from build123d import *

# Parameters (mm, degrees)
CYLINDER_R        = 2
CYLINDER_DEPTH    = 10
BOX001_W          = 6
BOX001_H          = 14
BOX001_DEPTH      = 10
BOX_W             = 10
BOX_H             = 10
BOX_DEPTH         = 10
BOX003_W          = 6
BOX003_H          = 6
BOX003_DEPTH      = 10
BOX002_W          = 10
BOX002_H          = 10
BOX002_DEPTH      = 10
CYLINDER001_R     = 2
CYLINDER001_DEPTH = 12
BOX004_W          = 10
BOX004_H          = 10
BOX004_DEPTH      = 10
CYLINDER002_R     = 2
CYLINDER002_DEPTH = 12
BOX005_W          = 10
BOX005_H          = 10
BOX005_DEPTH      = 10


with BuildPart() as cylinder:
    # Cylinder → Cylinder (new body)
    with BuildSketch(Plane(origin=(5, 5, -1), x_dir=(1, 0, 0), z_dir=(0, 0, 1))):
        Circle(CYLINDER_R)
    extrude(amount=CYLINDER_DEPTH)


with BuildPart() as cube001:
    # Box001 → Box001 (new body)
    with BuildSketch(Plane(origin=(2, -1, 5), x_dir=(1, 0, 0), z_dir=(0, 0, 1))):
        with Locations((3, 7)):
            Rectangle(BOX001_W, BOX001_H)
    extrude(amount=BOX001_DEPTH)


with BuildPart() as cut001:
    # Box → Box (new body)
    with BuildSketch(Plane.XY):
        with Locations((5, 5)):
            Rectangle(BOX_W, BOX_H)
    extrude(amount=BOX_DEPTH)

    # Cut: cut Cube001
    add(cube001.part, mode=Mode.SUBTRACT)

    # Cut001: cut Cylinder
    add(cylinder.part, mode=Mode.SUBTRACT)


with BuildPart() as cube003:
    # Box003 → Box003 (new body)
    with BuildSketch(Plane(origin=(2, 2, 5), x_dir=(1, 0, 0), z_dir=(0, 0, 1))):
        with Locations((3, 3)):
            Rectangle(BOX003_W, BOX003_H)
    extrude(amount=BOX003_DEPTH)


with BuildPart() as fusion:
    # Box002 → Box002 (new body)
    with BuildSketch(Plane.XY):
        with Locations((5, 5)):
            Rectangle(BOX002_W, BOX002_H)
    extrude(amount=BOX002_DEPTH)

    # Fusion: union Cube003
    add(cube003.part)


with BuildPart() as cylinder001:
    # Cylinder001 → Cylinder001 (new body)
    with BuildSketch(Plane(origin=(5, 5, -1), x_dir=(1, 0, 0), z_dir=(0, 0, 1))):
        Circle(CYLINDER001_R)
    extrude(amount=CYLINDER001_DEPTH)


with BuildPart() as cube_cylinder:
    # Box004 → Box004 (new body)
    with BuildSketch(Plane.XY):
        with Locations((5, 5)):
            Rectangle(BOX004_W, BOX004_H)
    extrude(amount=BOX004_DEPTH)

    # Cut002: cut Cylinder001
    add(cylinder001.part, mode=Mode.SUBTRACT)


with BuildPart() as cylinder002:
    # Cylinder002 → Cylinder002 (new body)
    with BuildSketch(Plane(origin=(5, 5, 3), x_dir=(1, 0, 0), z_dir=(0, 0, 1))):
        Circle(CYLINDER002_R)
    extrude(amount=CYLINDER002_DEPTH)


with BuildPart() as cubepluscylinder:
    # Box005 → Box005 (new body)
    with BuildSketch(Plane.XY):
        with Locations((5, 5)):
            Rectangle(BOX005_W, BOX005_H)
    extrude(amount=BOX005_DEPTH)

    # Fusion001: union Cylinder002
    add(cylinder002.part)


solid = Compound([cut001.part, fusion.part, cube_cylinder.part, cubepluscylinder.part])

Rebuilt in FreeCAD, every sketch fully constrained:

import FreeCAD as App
import Part
import Sketcher
from FreeCAD import Vector
Q = App.Units.Quantity


def add_polygon(sketch, points):
    """Adds a closed chain of lines whose ends are joined by coincident constraints."""
    first, n = sketch.GeometryCount, len(points)
    for a, b in zip(points, points[1:] + points[:1]):
        sketch.addGeometry(Part.LineSegment(App.Vector(*a, 0), App.Vector(*b, 0)), False)
    for i in range(n):
        sketch.addConstraint(Sketcher.Constraint("Coincident", first + i, 2, first + (i + 1) % n, 1))

doc = App.newDocument("Part")
body = doc.addObject("PartDesign::Body", "Body")

# Sketch on XY plane
sketch1 = body.newObject("Sketcher::SketchObject", "Sketch")
sketch1.AttachmentSupport = (doc.getObject("XY_Plane"), [""])
sketch1.MapMode = "FlatFace"
sketch1.AttachmentOffset = App.Placement(Vector(0, 0, -1), App.Rotation())
sketch1.addGeometry(Part.Circle(Vector(5, 5, 0), Vector(0, 0, 1), 2), False)
sketch1.addConstraint([
    Sketcher.Constraint("Diameter", 0, Q("4 mm")),
    Sketcher.Constraint("DistanceX", -1, 1, 0, 3, Q("5 mm")),
    Sketcher.Constraint("DistanceY", -1, 1, 0, 3, Q("5 mm")),
])
pad1 = body.newObject("PartDesign::Pad", "Pad")
pad1.Profile = sketch1
pad1.Length = 10
body2 = doc.addObject("PartDesign::Body", "Body001")

# Sketch on XY plane
sketch2 = body2.newObject("Sketcher::SketchObject", "Sketch001")
sketch2.AttachmentSupport = (doc.getObject("XY_Plane001"), [""])
sketch2.MapMode = "FlatFace"
sketch2.AttachmentOffset = App.Placement(Vector(0, 0, 5), App.Rotation())
add_polygon(sketch2, [(2, 13), (2, -1), (8, -1), (8, 13)])  # lines 0-3
sketch2.addConstraint([
    Sketcher.Constraint("Vertical", 0),
    Sketcher.Constraint("Horizontal", 1),
    Sketcher.Constraint("Vertical", 2),
    Sketcher.Constraint("Horizontal", 3),
    Sketcher.Constraint("DistanceX", 1, 1, 1, 2, Q("6 mm")),
    Sketcher.Constraint("DistanceY", 0, 2, 0, 1, Q("14 mm")),
    Sketcher.Constraint("DistanceX", -1, 1, 0, 2, Q("2 mm")),
    Sketcher.Constraint("DistanceY", 0, 2, -1, 1, Q("1 mm")),
])
pad2 = body2.newObject("PartDesign::Pad", "Pad001")
pad2.Profile = sketch2
pad2.Length = 10
body3 = doc.addObject("PartDesign::Body", "Body002")

# Sketch on XY plane
sketch3 = body3.newObject("Sketcher::SketchObject", "Sketch002")
sketch3.AttachmentSupport = (doc.getObject("XY_Plane002"), [""])
sketch3.MapMode = "FlatFace"
add_polygon(sketch3, [(0, 10), (0, 0), (10, 0), (10, 10)])  # lines 0-3
sketch3.addConstraint([
    Sketcher.Constraint("Vertical", 0),
    Sketcher.Constraint("Horizontal", 1),
    Sketcher.Constraint("Vertical", 2),
    Sketcher.Constraint("Horizontal", 3),
    Sketcher.Constraint("Coincident", 0, 2, -1, 1),
    Sketcher.Constraint("Equal", 3, 0),
    Sketcher.Constraint("DistanceX", 1, 1, 1, 2, Q("10 mm")),
])
pad3 = body3.newObject("PartDesign::Pad", "Pad002")
pad3.Profile = sketch3
pad3.Length = 10
doc.recompute()

boolean = body3.newObject("PartDesign::Boolean", "Boolean")
boolean.Type = "Cut"
boolean.addObjects([body2])
doc.recompute()

boolean2 = body3.newObject("PartDesign::Boolean", "Boolean001")
boolean2.Type = "Cut"
boolean2.addObjects([body])
body4 = doc.addObject("PartDesign::Body", "Body003")

# Sketch on XY plane
sketch4 = body4.newObject("Sketcher::SketchObject", "Sketch003")
sketch4.AttachmentSupport = (doc.getObject("XY_Plane003"), [""])
sketch4.MapMode = "FlatFace"
sketch4.AttachmentOffset = App.Placement(Vector(0, 0, 5), App.Rotation())
add_polygon(sketch4, [(2, 8), (2, 2), (8, 2), (8, 8)])  # lines 0-3
sketch4.addConstraint([
    Sketcher.Constraint("Vertical", 0),
    Sketcher.Constraint("Horizontal", 1),
    Sketcher.Constraint("Vertical", 2),
    Sketcher.Constraint("Horizontal", 3),
    Sketcher.Constraint("Equal", 3, 0),
    Sketcher.Constraint("DistanceX", 1, 1, 1, 2, Q("6 mm")),
    Sketcher.Constraint("DistanceX", -1, 1, 0, 2, Q("2 mm")),
    Sketcher.Constraint("DistanceY", -1, 1, 0, 2, Q("2 mm")),
])
pad4 = body4.newObject("PartDesign::Pad", "Pad003")
pad4.Profile = sketch4
pad4.Length = 10
body5 = doc.addObject("PartDesign::Body", "Body004")

# Sketch on XY plane
sketch5 = body5.newObject("Sketcher::SketchObject", "Sketch004")
sketch5.AttachmentSupport = (doc.getObject("XY_Plane004"), [""])
sketch5.MapMode = "FlatFace"
add_polygon(sketch5, [(0, 10), (0, 0), (10, 0), (10, 10)])  # lines 0-3
sketch5.addConstraint([
    Sketcher.Constraint("Vertical", 0),
    Sketcher.Constraint("Horizontal", 1),
    Sketcher.Constraint("Vertical", 2),
    Sketcher.Constraint("Horizontal", 3),
    Sketcher.Constraint("Coincident", 0, 2, -1, 1),
    Sketcher.Constraint("Equal", 3, 0),
    Sketcher.Constraint("DistanceX", 1, 1, 1, 2, Q("10 mm")),
])
pad5 = body5.newObject("PartDesign::Pad", "Pad004")
pad5.Profile = sketch5
pad5.Length = 10
doc.recompute()

boolean3 = body5.newObject("PartDesign::Boolean", "Boolean002")
boolean3.Type = "Fuse"
boolean3.addObjects([body4])
body6 = doc.addObject("PartDesign::Body", "Body005")

# Sketch on XY plane
sketch6 = body6.newObject("Sketcher::SketchObject", "Sketch005")
sketch6.AttachmentSupport = (doc.getObject("XY_Plane005"), [""])
sketch6.MapMode = "FlatFace"
sketch6.AttachmentOffset = App.Placement(Vector(0, 0, -1), App.Rotation())
sketch6.addGeometry(Part.Circle(Vector(5, 5, 0), Vector(0, 0, 1), 2), False)
sketch6.addConstraint([
    Sketcher.Constraint("Diameter", 0, Q("4 mm")),
    Sketcher.Constraint("DistanceX", -1, 1, 0, 3, Q("5 mm")),
    Sketcher.Constraint("DistanceY", -1, 1, 0, 3, Q("5 mm")),
])
pad6 = body6.newObject("PartDesign::Pad", "Pad005")
pad6.Profile = sketch6
pad6.Length = 12
body7 = doc.addObject("PartDesign::Body", "Body006")

# Sketch on XY plane
sketch7 = body7.newObject("Sketcher::SketchObject", "Sketch006")
sketch7.AttachmentSupport = (doc.getObject("XY_Plane006"), [""])
sketch7.MapMode = "FlatFace"
add_polygon(sketch7, [(0, 10), (0, 0), (10, 0), (10, 10)])  # lines 0-3
sketch7.addConstraint([
    Sketcher.Constraint("Vertical", 0),
    Sketcher.Constraint("Horizontal", 1),
    Sketcher.Constraint("Vertical", 2),
    Sketcher.Constraint("Horizontal", 3),
    Sketcher.Constraint("Coincident", 0, 2, -1, 1),
    Sketcher.Constraint("Equal", 3, 0),
    Sketcher.Constraint("DistanceX", 1, 1, 1, 2, Q("10 mm")),
])
pad7 = body7.newObject("PartDesign::Pad", "Pad006")
pad7.Profile = sketch7
pad7.Length = 10
doc.recompute()

boolean4 = body7.newObject("PartDesign::Boolean", "Boolean003")
boolean4.Type = "Cut"
boolean4.addObjects([body6])
body8 = doc.addObject("PartDesign::Body", "Body007")

# Sketch on XY plane
sketch8 = body8.newObject("Sketcher::SketchObject", "Sketch007")
sketch8.AttachmentSupport = (doc.getObject("XY_Plane007"), [""])
sketch8.MapMode = "FlatFace"
sketch8.AttachmentOffset = App.Placement(Vector(0, 0, 3), App.Rotation())
sketch8.addGeometry(Part.Circle(Vector(5, 5, 0), Vector(0, 0, 1), 2), False)
sketch8.addConstraint([
    Sketcher.Constraint("Diameter", 0, Q("4 mm")),
    Sketcher.Constraint("DistanceX", -1, 1, 0, 3, Q("5 mm")),
    Sketcher.Constraint("DistanceY", -1, 1, 0, 3, Q("5 mm")),
])
pad8 = body8.newObject("PartDesign::Pad", "Pad007")
pad8.Profile = sketch8
pad8.Length = 12
body9 = doc.addObject("PartDesign::Body", "Body008")

# Sketch on XY plane
sketch9 = body9.newObject("Sketcher::SketchObject", "Sketch008")
sketch9.AttachmentSupport = (doc.getObject("XY_Plane008"), [""])
sketch9.MapMode = "FlatFace"
add_polygon(sketch9, [(0, 10), (0, 0), (10, 0), (10, 10)])  # lines 0-3
sketch9.addConstraint([
    Sketcher.Constraint("Vertical", 0),
    Sketcher.Constraint("Horizontal", 1),
    Sketcher.Constraint("Vertical", 2),
    Sketcher.Constraint("Horizontal", 3),
    Sketcher.Constraint("Coincident", 0, 2, -1, 1),
    Sketcher.Constraint("Equal", 3, 0),
    Sketcher.Constraint("DistanceX", 1, 1, 1, 2, Q("10 mm")),
])
pad9 = body9.newObject("PartDesign::Pad", "Pad008")
pad9.Profile = sketch9
pad9.Length = 10
doc.recompute()

boolean5 = body9.newObject("PartDesign::Boolean", "Boolean004")
boolean5.Type = "Fuse"
boolean5.addObjects([body8])

doc.recompute()
